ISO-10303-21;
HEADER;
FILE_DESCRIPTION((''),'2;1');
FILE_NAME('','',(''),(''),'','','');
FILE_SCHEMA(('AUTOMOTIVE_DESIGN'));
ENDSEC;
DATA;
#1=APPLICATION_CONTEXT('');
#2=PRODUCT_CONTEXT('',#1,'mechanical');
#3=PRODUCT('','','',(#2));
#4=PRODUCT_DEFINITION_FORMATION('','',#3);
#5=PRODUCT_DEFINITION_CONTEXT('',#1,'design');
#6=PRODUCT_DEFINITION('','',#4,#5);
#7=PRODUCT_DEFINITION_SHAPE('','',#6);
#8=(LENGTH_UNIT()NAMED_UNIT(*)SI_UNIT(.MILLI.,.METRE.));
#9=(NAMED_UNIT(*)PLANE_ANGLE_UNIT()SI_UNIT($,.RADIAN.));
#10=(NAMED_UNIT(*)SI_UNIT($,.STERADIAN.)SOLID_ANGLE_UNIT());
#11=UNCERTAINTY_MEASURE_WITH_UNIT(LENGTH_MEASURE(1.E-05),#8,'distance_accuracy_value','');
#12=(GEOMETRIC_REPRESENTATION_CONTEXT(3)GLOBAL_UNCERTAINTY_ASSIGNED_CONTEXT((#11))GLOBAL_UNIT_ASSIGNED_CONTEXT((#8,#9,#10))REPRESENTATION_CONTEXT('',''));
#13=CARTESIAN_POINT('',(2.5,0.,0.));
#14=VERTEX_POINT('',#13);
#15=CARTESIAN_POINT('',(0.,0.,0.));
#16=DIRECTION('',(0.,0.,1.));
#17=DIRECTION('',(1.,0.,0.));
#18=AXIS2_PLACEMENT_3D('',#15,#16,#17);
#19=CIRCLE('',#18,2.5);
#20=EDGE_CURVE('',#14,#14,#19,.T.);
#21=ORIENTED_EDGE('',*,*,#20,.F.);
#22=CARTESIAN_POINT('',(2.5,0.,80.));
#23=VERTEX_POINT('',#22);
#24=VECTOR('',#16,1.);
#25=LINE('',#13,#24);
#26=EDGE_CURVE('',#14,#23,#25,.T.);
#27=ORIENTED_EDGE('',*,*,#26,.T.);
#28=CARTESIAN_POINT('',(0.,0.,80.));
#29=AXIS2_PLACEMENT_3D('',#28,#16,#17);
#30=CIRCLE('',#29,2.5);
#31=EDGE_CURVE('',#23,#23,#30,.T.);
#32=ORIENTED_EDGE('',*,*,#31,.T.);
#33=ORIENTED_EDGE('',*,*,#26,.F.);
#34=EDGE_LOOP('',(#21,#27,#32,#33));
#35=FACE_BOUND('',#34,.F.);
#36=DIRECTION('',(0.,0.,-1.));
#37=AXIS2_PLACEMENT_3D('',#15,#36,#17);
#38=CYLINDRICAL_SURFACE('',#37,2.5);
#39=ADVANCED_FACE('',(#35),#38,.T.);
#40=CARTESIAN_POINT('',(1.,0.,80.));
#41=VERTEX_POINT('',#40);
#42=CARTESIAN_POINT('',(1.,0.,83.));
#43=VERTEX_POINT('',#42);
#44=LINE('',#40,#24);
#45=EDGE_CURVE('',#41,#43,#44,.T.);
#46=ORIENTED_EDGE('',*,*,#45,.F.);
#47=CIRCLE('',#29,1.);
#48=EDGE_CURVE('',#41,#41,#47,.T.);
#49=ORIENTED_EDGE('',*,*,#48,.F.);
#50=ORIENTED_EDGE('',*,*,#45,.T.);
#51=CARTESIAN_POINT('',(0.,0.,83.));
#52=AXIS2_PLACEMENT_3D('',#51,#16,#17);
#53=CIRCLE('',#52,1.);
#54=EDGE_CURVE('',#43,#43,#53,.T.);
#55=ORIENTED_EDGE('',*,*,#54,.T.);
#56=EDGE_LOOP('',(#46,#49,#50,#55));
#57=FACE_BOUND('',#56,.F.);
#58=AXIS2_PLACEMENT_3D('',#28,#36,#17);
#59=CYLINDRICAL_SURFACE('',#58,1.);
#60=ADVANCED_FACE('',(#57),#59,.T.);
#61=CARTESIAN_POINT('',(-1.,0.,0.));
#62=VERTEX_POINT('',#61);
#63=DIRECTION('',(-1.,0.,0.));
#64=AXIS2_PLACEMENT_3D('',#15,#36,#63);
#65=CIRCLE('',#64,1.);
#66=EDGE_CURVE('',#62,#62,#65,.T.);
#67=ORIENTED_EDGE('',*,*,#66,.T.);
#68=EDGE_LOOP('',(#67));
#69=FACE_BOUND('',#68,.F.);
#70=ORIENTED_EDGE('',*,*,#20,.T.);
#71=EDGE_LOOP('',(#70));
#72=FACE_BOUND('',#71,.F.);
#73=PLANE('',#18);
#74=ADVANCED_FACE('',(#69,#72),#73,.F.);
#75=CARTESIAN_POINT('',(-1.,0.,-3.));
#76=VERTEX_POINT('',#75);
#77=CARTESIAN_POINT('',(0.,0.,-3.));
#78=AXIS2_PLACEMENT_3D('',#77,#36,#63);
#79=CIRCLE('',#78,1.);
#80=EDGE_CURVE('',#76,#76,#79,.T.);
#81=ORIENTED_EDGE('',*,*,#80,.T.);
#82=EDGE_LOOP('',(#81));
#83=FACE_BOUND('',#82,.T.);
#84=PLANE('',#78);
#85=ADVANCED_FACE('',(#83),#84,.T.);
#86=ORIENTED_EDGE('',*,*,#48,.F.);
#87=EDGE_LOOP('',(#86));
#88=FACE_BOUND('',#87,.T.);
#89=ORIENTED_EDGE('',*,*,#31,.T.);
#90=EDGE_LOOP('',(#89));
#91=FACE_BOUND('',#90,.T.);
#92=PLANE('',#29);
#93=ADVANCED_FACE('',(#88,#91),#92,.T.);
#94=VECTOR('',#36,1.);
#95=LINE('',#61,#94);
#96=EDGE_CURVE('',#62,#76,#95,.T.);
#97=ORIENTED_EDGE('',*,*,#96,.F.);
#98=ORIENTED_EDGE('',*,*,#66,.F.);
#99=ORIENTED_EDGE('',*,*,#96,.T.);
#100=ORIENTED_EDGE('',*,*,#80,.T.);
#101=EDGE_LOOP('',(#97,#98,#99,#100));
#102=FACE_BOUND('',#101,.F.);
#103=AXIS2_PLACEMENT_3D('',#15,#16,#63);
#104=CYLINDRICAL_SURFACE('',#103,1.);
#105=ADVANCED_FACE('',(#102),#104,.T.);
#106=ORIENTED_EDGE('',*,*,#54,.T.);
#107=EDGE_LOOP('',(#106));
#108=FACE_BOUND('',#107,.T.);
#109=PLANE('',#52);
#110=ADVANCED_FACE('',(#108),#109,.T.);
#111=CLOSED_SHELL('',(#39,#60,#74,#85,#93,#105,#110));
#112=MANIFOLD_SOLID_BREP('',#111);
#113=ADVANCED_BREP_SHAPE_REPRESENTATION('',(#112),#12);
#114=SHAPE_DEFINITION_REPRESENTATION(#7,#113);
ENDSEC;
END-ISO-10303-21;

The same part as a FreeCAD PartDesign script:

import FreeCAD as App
import Part
import Sketcher

V = App.Vector

doc = App.newDocument("Part")
params = doc.addObject("Spreadsheet::Sheet", "Params")
for row, (alias, value) in enumerate([
    ("sketch1_diameter", "5 mm"),
    ("pad1_length", "80 mm"),
    ("sketch2_diameter", "2 mm"),
    ("pad2_length", "3 mm"),
    ("sketch3_diameter", "2 mm"),
    ("pad3_length", "3 mm"),
], start=1):
    params.set(f"A{row}", alias)
    params.set(f"B{row}", "=" + value)
    params.setAlias(f"B{row}", alias)

body = doc.addObject("PartDesign::Body", "Body")

# Sketch on XY plane
sketch1 = body.newObject("Sketcher::SketchObject", "Sketch")
sketch1.AttachmentSupport = (doc.getObject("XY_Plane"), [""])
sketch1.MapMode = "FlatFace"
sketch1.addGeometry(Part.Circle(V(0, 0, 0), V(0, 0, 1), 2.5), False)
sketch1.addConstraint([
    Sketcher.Constraint("Coincident", 0, 3, -1, 1),
    Sketcher.Constraint("Diameter", 0, 5.0),
])
sketch1.setExpression("Constraints[1]", "Params.sketch1_diameter")
pad1 = body.newObject("PartDesign::Pad", "Pad")
pad1.Profile = sketch1
pad1.setExpression("Length", "Params.pad1_length")

# Sketch on XY plane
sketch2 = body.newObject("Sketcher::SketchObject", "Sketch001")
sketch2.AttachmentSupport = (doc.getObject("XY_Plane"), [""])
sketch2.MapMode = "FlatFace"
sketch2.AttachmentOffset = App.Placement(V(0, 0, 80), App.Rotation())
sketch2.addGeometry(Part.Circle(V(0, 0, 0), V(0, 0, 1), 1), False)
sketch2.addConstraint([
    Sketcher.Constraint("Coincident", 0, 3, -1, 1),
    Sketcher.Constraint("Diameter", 0, 2.0),
])
sketch2.setExpression("Constraints[1]", "Params.sketch2_diameter")
pad2 = body.newObject("PartDesign::Pad", "Pad001")
pad2.Profile = sketch2
pad2.setExpression("Length", "Params.pad2_length")

# Sketch on XY plane
sketch3 = body.newObject("Sketcher::SketchObject", "Sketch002")
sketch3.AttachmentSupport = (doc.getObject("XY_Plane"), [""])
sketch3.MapMode = "FlatFace"
sketch3.addGeometry(Part.Circle(V(0, 0, 0), V(0, 0, 1), 1), False)
sketch3.addConstraint([
    Sketcher.Constraint("Coincident", 0, 3, -1, 1),
    Sketcher.Constraint("Diameter", 0, 2.0),
])
sketch3.setExpression("Constraints[1]", "Params.sketch3_diameter")
pad3 = body.newObject("PartDesign::Pad", "Pad002")
pad3.Profile = sketch3
pad3.setExpression("Length", "Params.pad3_length")
pad3.Reversed = True

doc.recompute()
